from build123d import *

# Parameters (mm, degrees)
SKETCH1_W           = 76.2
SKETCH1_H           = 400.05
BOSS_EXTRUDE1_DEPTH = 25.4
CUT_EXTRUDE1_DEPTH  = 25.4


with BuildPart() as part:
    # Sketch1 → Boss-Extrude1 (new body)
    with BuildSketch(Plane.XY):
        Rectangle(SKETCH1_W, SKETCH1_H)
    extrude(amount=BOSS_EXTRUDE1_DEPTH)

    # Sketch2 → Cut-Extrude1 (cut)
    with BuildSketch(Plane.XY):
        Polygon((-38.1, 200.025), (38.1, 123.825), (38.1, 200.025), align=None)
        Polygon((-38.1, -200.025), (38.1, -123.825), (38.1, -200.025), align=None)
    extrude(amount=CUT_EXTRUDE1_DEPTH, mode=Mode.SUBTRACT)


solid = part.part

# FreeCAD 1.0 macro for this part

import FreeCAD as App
import Part
import Sketcher

V = App.Vector
Q = App.Units.Quantity


def add_polygon(sketch, points):
    """Adds a closed chain of lines whose ends are joined by coincident constraints."""
    first, n = sketch.GeometryCount, len(points)
    for a, b in zip(points, points[1:] + points[:1]):
        sketch.addGeometry(Part.LineSegment(App.Vector(*a, 0), App.Vector(*b, 0)), False)
    for i in range(n):
        sketch.addConstraint(Sketcher.Constraint("Coincident", first + i, 2, first + (i + 1) % n, 1))

doc = App.newDocument("Part")
body = doc.addObject("PartDesign::Body", "Body")

# Sketch on XY plane
sketch1 = body.newObject("Sketcher::SketchObject", "Sketch")
sketch1.AttachmentSupport = (doc.getObject("XY_Plane"), [""])
sketch1.MapMode = "FlatFace"
add_polygon(sketch1, [(-38, 200), (-38, -200), (38, -200), (38, 200)])  # lines 0-3
sketch1.addConstraint([
    Sketcher.Constraint("Vertical", 0),
    Sketcher.Constraint("Horizontal", 1),
    Sketcher.Constraint("Vertical", 2),
    Sketcher.Constraint("Horizontal", 3),
    Sketcher.Constraint("Symmetric", 0, 2, 2, 2, -1, 1),
    Sketcher.Constraint("DistanceX", 1, 1, 1, 2, Q("3 in")),
    Sketcher.Constraint("DistanceY", 0, 2, 0, 1, Q("15.75 in")),
])
pad1 = body.newObject("PartDesign::Pad", "Pad")
pad1.Profile = sketch1
pad1.Length = Q("1 in")

# Sketch on XY plane
sketch2 = body.newObject("Sketcher::SketchObject", "Sketch001")
sketch2.AttachmentSupport = (doc.getObject("XY_Plane"), [""])
sketch2.MapMode = "FlatFace"
add_polygon(sketch2, [(-38, 200), (38, 124), (38, 200)])  # lines 0-2
add_polygon(sketch2, [(38, -124), (-38, -200), (38, -200)])  # lines 3-5
sketch2.addConstraint([
    Sketcher.Constraint("Vertical", 1),
    Sketcher.Constraint("Horizontal", 2),
    Sketcher.Constraint("Horizontal", 4),
    Sketcher.Constraint("Vertical", 5),
    Sketcher.Constraint("Symmetric", 1, 2, 3, 2, -1, 1),
    Sketcher.Constraint("Symmetric", 0, 2, 5, 2, -1),
    Sketcher.Constraint("Perpendicular", 0, 3),
    Sketcher.Constraint("Vertical", 2, 2, 3, 2),
    Sketcher.Constraint("DistanceX", 2, 2, 2, 1, Q("3 in")),
    Sketcher.Constraint("DistanceY", 3, 2, 0, 2, Q("12.75 in")),
])
pocket1 = body.newObject("PartDesign::Pocket", "Pocket")
pocket1.Profile = sketch2
pocket1.Length = Q("1 in")
pocket1.Reversed = True

doc.recompute()
